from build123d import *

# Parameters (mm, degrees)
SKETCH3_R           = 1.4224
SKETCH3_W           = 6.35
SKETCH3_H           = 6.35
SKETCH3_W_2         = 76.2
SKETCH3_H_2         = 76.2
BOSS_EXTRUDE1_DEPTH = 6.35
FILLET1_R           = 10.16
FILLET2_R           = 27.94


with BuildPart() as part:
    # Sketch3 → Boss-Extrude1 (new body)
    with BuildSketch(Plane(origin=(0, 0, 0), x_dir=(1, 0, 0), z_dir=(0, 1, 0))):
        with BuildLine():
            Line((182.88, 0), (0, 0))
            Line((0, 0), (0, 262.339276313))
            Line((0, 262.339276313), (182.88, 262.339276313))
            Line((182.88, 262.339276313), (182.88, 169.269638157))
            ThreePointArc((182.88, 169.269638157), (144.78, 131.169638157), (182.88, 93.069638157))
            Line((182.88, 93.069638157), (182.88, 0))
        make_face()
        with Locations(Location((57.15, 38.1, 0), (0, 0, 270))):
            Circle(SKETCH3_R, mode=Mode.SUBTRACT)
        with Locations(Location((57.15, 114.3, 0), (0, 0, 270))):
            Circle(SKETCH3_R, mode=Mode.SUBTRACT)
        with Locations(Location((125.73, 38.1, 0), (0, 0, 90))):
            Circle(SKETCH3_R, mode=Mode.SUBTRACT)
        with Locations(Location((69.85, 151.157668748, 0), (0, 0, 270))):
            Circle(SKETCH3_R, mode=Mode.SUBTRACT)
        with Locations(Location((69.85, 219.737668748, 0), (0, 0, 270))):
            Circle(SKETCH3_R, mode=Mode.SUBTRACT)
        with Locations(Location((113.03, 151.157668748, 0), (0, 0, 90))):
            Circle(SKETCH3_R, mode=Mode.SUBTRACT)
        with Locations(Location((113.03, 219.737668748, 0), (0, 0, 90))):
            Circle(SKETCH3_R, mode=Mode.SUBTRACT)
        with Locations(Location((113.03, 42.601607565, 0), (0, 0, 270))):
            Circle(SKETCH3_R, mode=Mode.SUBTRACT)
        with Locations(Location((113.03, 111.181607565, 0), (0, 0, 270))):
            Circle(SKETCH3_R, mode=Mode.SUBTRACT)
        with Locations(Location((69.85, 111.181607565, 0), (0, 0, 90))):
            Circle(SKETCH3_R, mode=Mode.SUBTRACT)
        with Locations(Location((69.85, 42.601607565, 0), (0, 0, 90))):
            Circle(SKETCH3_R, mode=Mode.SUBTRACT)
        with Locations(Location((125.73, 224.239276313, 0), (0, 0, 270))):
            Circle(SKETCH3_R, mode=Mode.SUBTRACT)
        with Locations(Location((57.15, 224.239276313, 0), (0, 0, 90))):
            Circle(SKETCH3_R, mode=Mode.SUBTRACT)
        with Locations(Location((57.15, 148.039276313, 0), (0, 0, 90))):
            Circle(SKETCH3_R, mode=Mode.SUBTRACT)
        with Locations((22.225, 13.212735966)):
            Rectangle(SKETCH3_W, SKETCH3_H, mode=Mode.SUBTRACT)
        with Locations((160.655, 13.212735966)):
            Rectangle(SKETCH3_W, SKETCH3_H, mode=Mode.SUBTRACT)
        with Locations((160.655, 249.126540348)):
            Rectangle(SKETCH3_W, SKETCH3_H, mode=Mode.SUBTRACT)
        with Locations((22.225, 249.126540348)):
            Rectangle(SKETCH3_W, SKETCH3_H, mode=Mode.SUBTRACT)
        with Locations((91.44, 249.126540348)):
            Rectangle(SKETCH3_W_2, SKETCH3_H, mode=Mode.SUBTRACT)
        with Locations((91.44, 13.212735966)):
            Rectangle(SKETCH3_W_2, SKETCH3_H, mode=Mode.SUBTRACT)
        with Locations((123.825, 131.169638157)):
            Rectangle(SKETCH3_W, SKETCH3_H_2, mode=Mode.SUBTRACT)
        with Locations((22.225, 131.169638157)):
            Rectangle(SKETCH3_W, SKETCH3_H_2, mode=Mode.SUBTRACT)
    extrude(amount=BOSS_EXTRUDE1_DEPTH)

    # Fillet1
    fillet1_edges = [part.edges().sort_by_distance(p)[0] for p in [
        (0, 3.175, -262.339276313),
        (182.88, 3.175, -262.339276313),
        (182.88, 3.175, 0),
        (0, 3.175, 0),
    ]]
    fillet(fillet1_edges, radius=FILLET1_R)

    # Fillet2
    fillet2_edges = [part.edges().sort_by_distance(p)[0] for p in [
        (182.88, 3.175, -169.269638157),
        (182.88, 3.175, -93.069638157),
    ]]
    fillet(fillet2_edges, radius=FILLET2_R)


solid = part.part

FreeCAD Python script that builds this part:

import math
import FreeCAD as App
import Part
import Sketcher

V = App.Vector
Q = App.Units.Quantity


def edges_at(feature, points):
    """Names of the edges that pass closest to the given points."""
    edges = feature.Shape.Edges
    near = lambda p: min(range(len(edges)), key=lambda i: edges[i].distToShape(Part.Vertex(*p))[0])
    return sorted({f"Edge{near(p) + 1}" for p in points})

doc = App.newDocument("Part")
body = doc.addObject("PartDesign::Body", "Body")

# Sketch on XZ plane
sketch1 = body.newObject("Sketcher::SketchObject", "Sketch")
sketch1.AttachmentSupport = (doc.getObject("XZ_Plane"), [""])
sketch1.MapMode = "FlatFace"
sketch1.addGeometry([
    Part.LineSegment(V(0, 0, 0), V(182.9, 0, 0)),  # 0
    Part.LineSegment(V(182.9, 0, 0), V(182.9, -93.1, 0)),  # 1
    Part.ArcOfCircle(Part.Circle(V(182.9, -131.2, 0), V(0, 0, 1), 38.1), math.radians(90), math.radians(270)),  # 2
    Part.LineSegment(V(182.9, -169.3, 0), V(182.9, -262.3, 0)),  # 3
    Part.LineSegment(V(182.9, -262.3, 0), V(0, -262.3, 0)),  # 4
    Part.LineSegment(V(0, -262.3, 0), V(0, 0, 0)),  # 5
    Part.LineSegment(V(157.5, -10, 0), V(157.5, -16.4, 0)),  # 6
    Part.LineSegment(V(157.5, -16.4, 0), V(163.8, -16.4, 0)),  # 7
    Part.LineSegment(V(163.8, -16.4, 0), V(163.8, -10, 0)),  # 8
    Part.LineSegment(V(163.8, -10, 0), V(157.5, -10, 0)),  # 9
    Part.Circle(V(125.7, -38.1, 0), V(0, 0, 1), 1.4),  # 10
    Part.Circle(V(113, -42.6, 0), V(0, 0, 1), 1.4),  # 11
    Part.Circle(V(113, -111.2, 0), V(0, 0, 1), 1.4),  # 12
    Part.LineSegment(V(53.3, -10, 0), V(53.3, -16.4, 0)),  # 13
    Part.LineSegment(V(53.3, -16.4, 0), V(129.5, -16.4, 0)),  # 14
    Part.LineSegment(V(129.5, -16.4, 0), V(129.5, -10, 0)),  # 15
    Part.LineSegment(V(129.5, -10, 0), V(53.3, -10, 0)),  # 16
    Part.Circle(V(57.1, -38.1, 0), V(0, 0, 1), 1.4),  # 17
    Part.Circle(V(69.8, -42.6, 0), V(0, 0, 1), 1.4),  # 18
    Part.LineSegment(V(19.1, -10, 0), V(19.1, -16.4, 0)),  # 19
    Part.LineSegment(V(19.1, -16.4, 0), V(25.4, -16.4, 0)),  # 20
    Part.LineSegment(V(25.4, -16.4, 0), V(25.4, -10, 0)),  # 21
    Part.LineSegment(V(25.4, -10, 0), V(19.1, -10, 0)),  # 22
    Part.Circle(V(69.8, -111.2, 0), V(0, 0, 1), 1.4),  # 23
    Part.Circle(V(57.1, -114.3, 0), V(0, 0, 1), 1.4),  # 24
    Part.LineSegment(V(120.7, -93.1, 0), V(120.7, -169.3, 0)),  # 25
    Part.LineSegment(V(120.7, -169.3, 0), V(127, -169.3, 0)),  # 26
    Part.LineSegment(V(127, -169.3, 0), V(127, -93.1, 0)),  # 27
    Part.LineSegment(V(127, -93.1, 0), V(120.7, -93.1, 0)),  # 28
    Part.Circle(V(113, -151.2, 0), V(0, 0, 1), 1.4),  # 29
    Part.LineSegment(V(157.5, -246, 0), V(157.5, -252.3, 0)),  # 30
    Part.LineSegment(V(157.5, -252.3, 0), V(163.8, -252.3, 0)),  # 31
    Part.LineSegment(V(163.8, -252.3, 0), V(163.8, -246, 0)),  # 32
    Part.LineSegment(V(163.8, -246, 0), V(157.5, -246, 0)),  # 33
    Part.Circle(V(113, -219.7, 0), V(0, 0, 1), 1.4),  # 34
    Part.Circle(V(125.7, -224.2, 0), V(0, 0, 1), 1.4),  # 35
    Part.Circle(V(69.8, -151.2, 0), V(0, 0, 1), 1.4),  # 36
    Part.Circle(V(57.1, -148, 0), V(0, 0, 1), 1.4),  # 37
    Part.LineSegment(V(19.1, -93.1, 0), V(19.1, -169.3, 0)),  # 38
    Part.LineSegment(V(19.1, -169.3, 0), V(25.4, -169.3, 0)),  # 39
    Part.LineSegment(V(25.4, -169.3, 0), V(25.4, -93.1, 0)),  # 40
    Part.LineSegment(V(25.4, -93.1, 0), V(19.1, -93.1, 0)),  # 41
    Part.Circle(V(69.8, -219.7, 0), V(0, 0, 1), 1.4),  # 42
    Part.LineSegment(V(53.3, -246, 0), V(53.3, -252.3, 0)),  # 43
    Part.LineSegment(V(53.3, -252.3, 0), V(129.5, -252.3, 0)),  # 44
    Part.LineSegment(V(129.5, -252.3, 0), V(129.5, -246, 0)),  # 45
    Part.LineSegment(V(129.5, -246, 0), V(53.3, -246, 0)),  # 46
    Part.Circle(V(57.1, -224.2, 0), V(0, 0, 1), 1.4),  # 47
    Part.LineSegment(V(19.1, -246, 0), V(19.1, -252.3, 0)),  # 48
    Part.LineSegment(V(19.1, -252.3, 0), V(25.4, -252.3, 0)),  # 49
    Part.LineSegment(V(25.4, -252.3, 0), V(25.4, -246, 0)),  # 50
    Part.LineSegment(V(25.4, -246, 0), V(19.1, -246, 0)),  # 51
], False)
sketch1.addConstraint([
    Sketcher.Constraint("Coincident", 0, 2, 1, 1),
    Sketcher.Constraint("Coincident", 1, 2, 2, 1),
    Sketcher.Constraint("Coincident", 2, 2, 3, 1),
    Sketcher.Constraint("Coincident", 3, 2, 4, 1),
    Sketcher.Constraint("Coincident", 4, 2, 5, 1),
    Sketcher.Constraint("Coincident", 5, 2, 0, 1),
    Sketcher.Constraint("Coincident", 6, 2, 7, 1),
    Sketcher.Constraint("Coincident", 7, 2, 8, 1),
    Sketcher.Constraint("Coincident", 8, 2, 9, 1),
    Sketcher.Constraint("Coincident", 9, 2, 6, 1),
    Sketcher.Constraint("Coincident", 13, 2, 14, 1),
    Sketcher.Constraint("Coincident", 14, 2, 15, 1),
    Sketcher.Constraint("Coincident", 15, 2, 16, 1),
    Sketcher.Constraint("Coincident", 16, 2, 13, 1),
    Sketcher.Constraint("Coincident", 19, 2, 20, 1),
    Sketcher.Constraint("Coincident", 20, 2, 21, 1),
    Sketcher.Constraint("Coincident", 21, 2, 22, 1),
    Sketcher.Constraint("Coincident", 22, 2, 19, 1),
    Sketcher.Constraint("Coincident", 25, 2, 26, 1),
    Sketcher.Constraint("Coincident", 26, 2, 27, 1),
    Sketcher.Constraint("Coincident", 27, 2, 28, 1),
    Sketcher.Constraint("Coincident", 28, 2, 25, 1),
    Sketcher.Constraint("Coincident", 30, 2, 31, 1),
    Sketcher.Constraint("Coincident", 31, 2, 32, 1),
    Sketcher.Constraint("Coincident", 32, 2, 33, 1),
    Sketcher.Constraint("Coincident", 33, 2, 30, 1),
    Sketcher.Constraint("Coincident", 38, 2, 39, 1),
    Sketcher.Constraint("Coincident", 39, 2, 40, 1),
    Sketcher.Constraint("Coincident", 40, 2, 41, 1),
    Sketcher.Constraint("Coincident", 41, 2, 38, 1),
    Sketcher.Constraint("Coincident", 43, 2, 44, 1),
    Sketcher.Constraint("Coincident", 44, 2, 45, 1),
    Sketcher.Constraint("Coincident", 45, 2, 46, 1),
    Sketcher.Constraint("Coincident", 46, 2, 43, 1),
    Sketcher.Constraint("Coincident", 48, 2, 49, 1),
    Sketcher.Constraint("Coincident", 49, 2, 50, 1),
    Sketcher.Constraint("Coincident", 50, 2, 51, 1),
    Sketcher.Constraint("Coincident", 51, 2, 48, 1),
    Sketcher.Constraint("Horizontal", 0),
    Sketcher.Constraint("Vertical", 1),
    Sketcher.Constraint("Vertical", 3),
    Sketcher.Constraint("Horizontal", 4),
    Sketcher.Constraint("Vertical", 5),
    Sketcher.Constraint("Vertical", 6),
    Sketcher.Constraint("Horizontal", 7),
    Sketcher.Constraint("Vertical", 8),
    Sketcher.Constraint("Horizontal", 9),
    Sketcher.Constraint("Vertical", 13),
    Sketcher.Constraint("Horizontal", 14),
    Sketcher.Constraint("Vertical", 15),
    Sketcher.Constraint("Horizontal", 16),
    Sketcher.Constraint("Vertical", 19),
    Sketcher.Constraint("Horizontal", 20),
    Sketcher.Constraint("Vertical", 21),
    Sketcher.Constraint("Horizontal", 22),
    Sketcher.Constraint("Vertical", 25),
    Sketcher.Constraint("Horizontal", 26),
    Sketcher.Constraint("Vertical", 27),
    Sketcher.Constraint("Horizontal", 28),
    Sketcher.Constraint("Vertical", 30),
    Sketcher.Constraint("Horizontal", 31),
    Sketcher.Constraint("Vertical", 32),
    Sketcher.Constraint("Horizontal", 33),
    Sketcher.Constraint("Vertical", 38),
    Sketcher.Constraint("Horizontal", 39),
    Sketcher.Constraint("Vertical", 40),
    Sketcher.Constraint("Horizontal", 41),
    Sketcher.Constraint("Vertical", 43),
    Sketcher.Constraint("Horizontal", 44),
    Sketcher.Constraint("Vertical", 45),
    Sketcher.Constraint("Horizontal", 46),
    Sketcher.Constraint("Vertical", 48),
    Sketcher.Constraint("Horizontal", 49),
    Sketcher.Constraint("Vertical", 50),
    Sketcher.Constraint("Horizontal", 51),
    Sketcher.Constraint("Coincident", 5, 2, -1, 1),
    Sketcher.Constraint("Equal", 10, 11),
    Sketcher.Constraint("Equal", 11, 12),
    Sketcher.Constraint("Equal", 12, 17),
    Sketcher.Constraint("Equal", 17, 18),
    Sketcher.Constraint("Equal", 18, 23),
    Sketcher.Constraint("Equal", 23, 24),
    Sketcher.Constraint("Equal", 24, 29),
    Sketcher.Constraint("Equal", 29, 34),
    Sketcher.Constraint("Equal", 34, 35),
    Sketcher.Constraint("Equal", 35, 36),
    Sketcher.Constraint("Equal", 36, 37),
    Sketcher.Constraint("Equal", 37, 42),
    Sketcher.Constraint("Equal", 42, 47),
    Sketcher.Constraint("Horizontal", 10, 3, 17, 3),
    Sketcher.Constraint("Horizontal", 11, 3, 18, 3),
    Sketcher.Constraint("Horizontal", 12, 3, 23, 3),
    Sketcher.Constraint("Horizontal", 29, 3, 36, 3),
    Sketcher.Constraint("Horizontal", 34, 3, 42, 3),
    Sketcher.Constraint("Horizontal", 35, 3, 47, 3),
    Sketcher.Constraint("Horizontal", 7, 2, 13, 2),
    Sketcher.Constraint("Horizontal", 9, 2, 15, 2),
    Sketcher.Constraint("Horizontal", 14, 2, 19, 2),
    Sketcher.Constraint("Horizontal", 16, 2, 21, 2),
    Sketcher.Constraint("Horizontal", 2, 2, 25, 2),
    Sketcher.Constraint("Horizontal", 1, 2, 27, 2),
    Sketcher.Constraint("Horizontal", 26, 2, 38, 2),
    Sketcher.Constraint("Horizontal", 28, 2, 40, 2),
    Sketcher.Constraint("Horizontal", 31, 2, 43, 2),
    Sketcher.Constraint("Horizontal", 33, 2, 45, 2),
    Sketcher.Constraint("Horizontal", 44, 2, 48, 2),
    Sketcher.Constraint("Horizontal", 46, 2, 50, 2),
    Sketcher.Constraint("Vertical", 11, 3, 12, 3),
    Sketcher.Constraint("Vertical", 18, 3, 23, 3),
    Sketcher.Constraint("Vertical", 17, 3, 24, 3),
    Sketcher.Constraint("Vertical", 12, 3, 29, 3),
    Sketcher.Constraint("Vertical", 29, 3, 34, 3),
    Sketcher.Constraint("Vertical", 10, 3, 35, 3),
    Sketcher.Constraint("Vertical", 23, 3, 36, 3),
    Sketcher.Constraint("Vertical", 24, 3, 37, 3),
    Sketcher.Constraint("Vertical", 36, 3, 42, 3),
    Sketcher.Constraint("Vertical", 37, 3, 47, 3),
    Sketcher.Constraint("Vertical", 2, 3, 0, 2),
    Sketcher.Constraint("Vertical", 1, 2, 2, 2),
    Sketcher.Constraint("Vertical", 9, 2, 30, 2),
    Sketcher.Constraint("Vertical", 8, 2, 31, 2),
    Sketcher.Constraint("Vertical", 22, 2, 38, 2),
    Sketcher.Constraint("Vertical", 21, 2, 39, 2),
    Sketcher.Constraint("Vertical", 16, 2, 43, 2),
    Sketcher.Constraint("Vertical", 15, 2, 44, 2),
    Sketcher.Constraint("Vertical", 41, 2, 48, 2),
    Sketcher.Constraint("Vertical", 40, 2, 49, 2),
    Sketcher.Constraint("Equal", 9, 20),
    Sketcher.Constraint("Equal", 22, 26),
    Sketcher.Constraint("Equal", 1, 3),
    Sketcher.Constraint("Equal", 51, 6),
    Sketcher.Constraint("Equal", 46, 25),
    Sketcher.Constraint("Equal", 21, 30),
    Sketcher.Constraint("Radius", 2, Q("1.5 in")),
    Sketcher.Constraint("Diameter", 10, Q("0.112 in")),
    Sketcher.Constraint("DistanceX", 0, 1, 0, 2, Q("7.2 in")),
    Sketcher.Constraint("DistanceX", -1, 1, 20, 2, Q("1 in")),
    Sketcher.Constraint("DistanceX", -1, 1, 26, 2, Q("5 in")),
    Sketcher.Constraint("DistanceY", 24, 3, 17, 3, Q("3 in")),
    Sketcher.Constraint("DistanceY", 47, 3, 37, 3, Q("3 in")),
    Sketcher.Constraint("DistanceX", 6, 2, 0, 2, Q("1 in")),
    Sketcher.Constraint("DistanceX", 11, 3, 7, 2, Q("2 in")),
    Sketcher.Constraint("DistanceX", 19, 2, 18, 3, Q("2 in")),
    Sketcher.Constraint("DistanceX", 7, 1, 7, 2, Q("0.25 in")),
    Sketcher.Constraint("DistanceY", 10, 3, -1, 1, Q("1.5 in")),
    Sketcher.Constraint("DistanceX", -1, 1, 13, 2, Q("2.1 in")),
    Sketcher.Constraint("DistanceX", 11, 3, 10, 3, Q("0.5 in")),
    Sketcher.Constraint("DistanceY", 12, 3, 11, 3, Q("2.7 in")),
    Sketcher.Constraint("DistanceX", 17, 3, 11, 3, Q("2.2 in")),
    Sketcher.Constraint("DistanceY", 34, 3, 29, 3, Q("2.7 in")),
    Sketcher.Constraint("DistanceY", 3, 2, 35, 3, Q("1.5 in")),
    Sketcher.Constraint("DistanceY", 1, 2, 1, 1, 93.069638),
    Sketcher.Constraint("DistanceY", 29, 3, -1, 1, 151.157669),
    Sketcher.Constraint("DistanceY", 30, 2, -1, 1, 252.30154),
    Sketcher.Constraint("DistanceY", 2, 3, 11, 3, 88.568031),
    Sketcher.Constraint("DistanceY", 11, 3, 6, 2, 26.213872),
])
pad1 = body.newObject("PartDesign::Pad", "Pad")
pad1.Profile = sketch1
pad1.Length = Q("0.25 in")
pad1.Reversed = True
doc.recompute()

fillet = body.newObject("PartDesign::Fillet", "Fillet")
fillet.Base = (pad1, edges_at(pad1, [
    (0, 3.175, -262.339),
    (182.88, 3.175, -262.339),
    (182.88, 3.175, 0),
    (0, 3.175, 0),
]))
fillet.Radius = Q("0.4 in")
doc.recompute()

fillet2 = body.newObject("PartDesign::Fillet", "Fillet001")
fillet2.Base = (fillet, edges_at(fillet, [(182.88, 3.175, -169.27), (182.88, 3.175, -93.07)]))
fillet2.Radius = Q("1.1 in")

doc.recompute()
